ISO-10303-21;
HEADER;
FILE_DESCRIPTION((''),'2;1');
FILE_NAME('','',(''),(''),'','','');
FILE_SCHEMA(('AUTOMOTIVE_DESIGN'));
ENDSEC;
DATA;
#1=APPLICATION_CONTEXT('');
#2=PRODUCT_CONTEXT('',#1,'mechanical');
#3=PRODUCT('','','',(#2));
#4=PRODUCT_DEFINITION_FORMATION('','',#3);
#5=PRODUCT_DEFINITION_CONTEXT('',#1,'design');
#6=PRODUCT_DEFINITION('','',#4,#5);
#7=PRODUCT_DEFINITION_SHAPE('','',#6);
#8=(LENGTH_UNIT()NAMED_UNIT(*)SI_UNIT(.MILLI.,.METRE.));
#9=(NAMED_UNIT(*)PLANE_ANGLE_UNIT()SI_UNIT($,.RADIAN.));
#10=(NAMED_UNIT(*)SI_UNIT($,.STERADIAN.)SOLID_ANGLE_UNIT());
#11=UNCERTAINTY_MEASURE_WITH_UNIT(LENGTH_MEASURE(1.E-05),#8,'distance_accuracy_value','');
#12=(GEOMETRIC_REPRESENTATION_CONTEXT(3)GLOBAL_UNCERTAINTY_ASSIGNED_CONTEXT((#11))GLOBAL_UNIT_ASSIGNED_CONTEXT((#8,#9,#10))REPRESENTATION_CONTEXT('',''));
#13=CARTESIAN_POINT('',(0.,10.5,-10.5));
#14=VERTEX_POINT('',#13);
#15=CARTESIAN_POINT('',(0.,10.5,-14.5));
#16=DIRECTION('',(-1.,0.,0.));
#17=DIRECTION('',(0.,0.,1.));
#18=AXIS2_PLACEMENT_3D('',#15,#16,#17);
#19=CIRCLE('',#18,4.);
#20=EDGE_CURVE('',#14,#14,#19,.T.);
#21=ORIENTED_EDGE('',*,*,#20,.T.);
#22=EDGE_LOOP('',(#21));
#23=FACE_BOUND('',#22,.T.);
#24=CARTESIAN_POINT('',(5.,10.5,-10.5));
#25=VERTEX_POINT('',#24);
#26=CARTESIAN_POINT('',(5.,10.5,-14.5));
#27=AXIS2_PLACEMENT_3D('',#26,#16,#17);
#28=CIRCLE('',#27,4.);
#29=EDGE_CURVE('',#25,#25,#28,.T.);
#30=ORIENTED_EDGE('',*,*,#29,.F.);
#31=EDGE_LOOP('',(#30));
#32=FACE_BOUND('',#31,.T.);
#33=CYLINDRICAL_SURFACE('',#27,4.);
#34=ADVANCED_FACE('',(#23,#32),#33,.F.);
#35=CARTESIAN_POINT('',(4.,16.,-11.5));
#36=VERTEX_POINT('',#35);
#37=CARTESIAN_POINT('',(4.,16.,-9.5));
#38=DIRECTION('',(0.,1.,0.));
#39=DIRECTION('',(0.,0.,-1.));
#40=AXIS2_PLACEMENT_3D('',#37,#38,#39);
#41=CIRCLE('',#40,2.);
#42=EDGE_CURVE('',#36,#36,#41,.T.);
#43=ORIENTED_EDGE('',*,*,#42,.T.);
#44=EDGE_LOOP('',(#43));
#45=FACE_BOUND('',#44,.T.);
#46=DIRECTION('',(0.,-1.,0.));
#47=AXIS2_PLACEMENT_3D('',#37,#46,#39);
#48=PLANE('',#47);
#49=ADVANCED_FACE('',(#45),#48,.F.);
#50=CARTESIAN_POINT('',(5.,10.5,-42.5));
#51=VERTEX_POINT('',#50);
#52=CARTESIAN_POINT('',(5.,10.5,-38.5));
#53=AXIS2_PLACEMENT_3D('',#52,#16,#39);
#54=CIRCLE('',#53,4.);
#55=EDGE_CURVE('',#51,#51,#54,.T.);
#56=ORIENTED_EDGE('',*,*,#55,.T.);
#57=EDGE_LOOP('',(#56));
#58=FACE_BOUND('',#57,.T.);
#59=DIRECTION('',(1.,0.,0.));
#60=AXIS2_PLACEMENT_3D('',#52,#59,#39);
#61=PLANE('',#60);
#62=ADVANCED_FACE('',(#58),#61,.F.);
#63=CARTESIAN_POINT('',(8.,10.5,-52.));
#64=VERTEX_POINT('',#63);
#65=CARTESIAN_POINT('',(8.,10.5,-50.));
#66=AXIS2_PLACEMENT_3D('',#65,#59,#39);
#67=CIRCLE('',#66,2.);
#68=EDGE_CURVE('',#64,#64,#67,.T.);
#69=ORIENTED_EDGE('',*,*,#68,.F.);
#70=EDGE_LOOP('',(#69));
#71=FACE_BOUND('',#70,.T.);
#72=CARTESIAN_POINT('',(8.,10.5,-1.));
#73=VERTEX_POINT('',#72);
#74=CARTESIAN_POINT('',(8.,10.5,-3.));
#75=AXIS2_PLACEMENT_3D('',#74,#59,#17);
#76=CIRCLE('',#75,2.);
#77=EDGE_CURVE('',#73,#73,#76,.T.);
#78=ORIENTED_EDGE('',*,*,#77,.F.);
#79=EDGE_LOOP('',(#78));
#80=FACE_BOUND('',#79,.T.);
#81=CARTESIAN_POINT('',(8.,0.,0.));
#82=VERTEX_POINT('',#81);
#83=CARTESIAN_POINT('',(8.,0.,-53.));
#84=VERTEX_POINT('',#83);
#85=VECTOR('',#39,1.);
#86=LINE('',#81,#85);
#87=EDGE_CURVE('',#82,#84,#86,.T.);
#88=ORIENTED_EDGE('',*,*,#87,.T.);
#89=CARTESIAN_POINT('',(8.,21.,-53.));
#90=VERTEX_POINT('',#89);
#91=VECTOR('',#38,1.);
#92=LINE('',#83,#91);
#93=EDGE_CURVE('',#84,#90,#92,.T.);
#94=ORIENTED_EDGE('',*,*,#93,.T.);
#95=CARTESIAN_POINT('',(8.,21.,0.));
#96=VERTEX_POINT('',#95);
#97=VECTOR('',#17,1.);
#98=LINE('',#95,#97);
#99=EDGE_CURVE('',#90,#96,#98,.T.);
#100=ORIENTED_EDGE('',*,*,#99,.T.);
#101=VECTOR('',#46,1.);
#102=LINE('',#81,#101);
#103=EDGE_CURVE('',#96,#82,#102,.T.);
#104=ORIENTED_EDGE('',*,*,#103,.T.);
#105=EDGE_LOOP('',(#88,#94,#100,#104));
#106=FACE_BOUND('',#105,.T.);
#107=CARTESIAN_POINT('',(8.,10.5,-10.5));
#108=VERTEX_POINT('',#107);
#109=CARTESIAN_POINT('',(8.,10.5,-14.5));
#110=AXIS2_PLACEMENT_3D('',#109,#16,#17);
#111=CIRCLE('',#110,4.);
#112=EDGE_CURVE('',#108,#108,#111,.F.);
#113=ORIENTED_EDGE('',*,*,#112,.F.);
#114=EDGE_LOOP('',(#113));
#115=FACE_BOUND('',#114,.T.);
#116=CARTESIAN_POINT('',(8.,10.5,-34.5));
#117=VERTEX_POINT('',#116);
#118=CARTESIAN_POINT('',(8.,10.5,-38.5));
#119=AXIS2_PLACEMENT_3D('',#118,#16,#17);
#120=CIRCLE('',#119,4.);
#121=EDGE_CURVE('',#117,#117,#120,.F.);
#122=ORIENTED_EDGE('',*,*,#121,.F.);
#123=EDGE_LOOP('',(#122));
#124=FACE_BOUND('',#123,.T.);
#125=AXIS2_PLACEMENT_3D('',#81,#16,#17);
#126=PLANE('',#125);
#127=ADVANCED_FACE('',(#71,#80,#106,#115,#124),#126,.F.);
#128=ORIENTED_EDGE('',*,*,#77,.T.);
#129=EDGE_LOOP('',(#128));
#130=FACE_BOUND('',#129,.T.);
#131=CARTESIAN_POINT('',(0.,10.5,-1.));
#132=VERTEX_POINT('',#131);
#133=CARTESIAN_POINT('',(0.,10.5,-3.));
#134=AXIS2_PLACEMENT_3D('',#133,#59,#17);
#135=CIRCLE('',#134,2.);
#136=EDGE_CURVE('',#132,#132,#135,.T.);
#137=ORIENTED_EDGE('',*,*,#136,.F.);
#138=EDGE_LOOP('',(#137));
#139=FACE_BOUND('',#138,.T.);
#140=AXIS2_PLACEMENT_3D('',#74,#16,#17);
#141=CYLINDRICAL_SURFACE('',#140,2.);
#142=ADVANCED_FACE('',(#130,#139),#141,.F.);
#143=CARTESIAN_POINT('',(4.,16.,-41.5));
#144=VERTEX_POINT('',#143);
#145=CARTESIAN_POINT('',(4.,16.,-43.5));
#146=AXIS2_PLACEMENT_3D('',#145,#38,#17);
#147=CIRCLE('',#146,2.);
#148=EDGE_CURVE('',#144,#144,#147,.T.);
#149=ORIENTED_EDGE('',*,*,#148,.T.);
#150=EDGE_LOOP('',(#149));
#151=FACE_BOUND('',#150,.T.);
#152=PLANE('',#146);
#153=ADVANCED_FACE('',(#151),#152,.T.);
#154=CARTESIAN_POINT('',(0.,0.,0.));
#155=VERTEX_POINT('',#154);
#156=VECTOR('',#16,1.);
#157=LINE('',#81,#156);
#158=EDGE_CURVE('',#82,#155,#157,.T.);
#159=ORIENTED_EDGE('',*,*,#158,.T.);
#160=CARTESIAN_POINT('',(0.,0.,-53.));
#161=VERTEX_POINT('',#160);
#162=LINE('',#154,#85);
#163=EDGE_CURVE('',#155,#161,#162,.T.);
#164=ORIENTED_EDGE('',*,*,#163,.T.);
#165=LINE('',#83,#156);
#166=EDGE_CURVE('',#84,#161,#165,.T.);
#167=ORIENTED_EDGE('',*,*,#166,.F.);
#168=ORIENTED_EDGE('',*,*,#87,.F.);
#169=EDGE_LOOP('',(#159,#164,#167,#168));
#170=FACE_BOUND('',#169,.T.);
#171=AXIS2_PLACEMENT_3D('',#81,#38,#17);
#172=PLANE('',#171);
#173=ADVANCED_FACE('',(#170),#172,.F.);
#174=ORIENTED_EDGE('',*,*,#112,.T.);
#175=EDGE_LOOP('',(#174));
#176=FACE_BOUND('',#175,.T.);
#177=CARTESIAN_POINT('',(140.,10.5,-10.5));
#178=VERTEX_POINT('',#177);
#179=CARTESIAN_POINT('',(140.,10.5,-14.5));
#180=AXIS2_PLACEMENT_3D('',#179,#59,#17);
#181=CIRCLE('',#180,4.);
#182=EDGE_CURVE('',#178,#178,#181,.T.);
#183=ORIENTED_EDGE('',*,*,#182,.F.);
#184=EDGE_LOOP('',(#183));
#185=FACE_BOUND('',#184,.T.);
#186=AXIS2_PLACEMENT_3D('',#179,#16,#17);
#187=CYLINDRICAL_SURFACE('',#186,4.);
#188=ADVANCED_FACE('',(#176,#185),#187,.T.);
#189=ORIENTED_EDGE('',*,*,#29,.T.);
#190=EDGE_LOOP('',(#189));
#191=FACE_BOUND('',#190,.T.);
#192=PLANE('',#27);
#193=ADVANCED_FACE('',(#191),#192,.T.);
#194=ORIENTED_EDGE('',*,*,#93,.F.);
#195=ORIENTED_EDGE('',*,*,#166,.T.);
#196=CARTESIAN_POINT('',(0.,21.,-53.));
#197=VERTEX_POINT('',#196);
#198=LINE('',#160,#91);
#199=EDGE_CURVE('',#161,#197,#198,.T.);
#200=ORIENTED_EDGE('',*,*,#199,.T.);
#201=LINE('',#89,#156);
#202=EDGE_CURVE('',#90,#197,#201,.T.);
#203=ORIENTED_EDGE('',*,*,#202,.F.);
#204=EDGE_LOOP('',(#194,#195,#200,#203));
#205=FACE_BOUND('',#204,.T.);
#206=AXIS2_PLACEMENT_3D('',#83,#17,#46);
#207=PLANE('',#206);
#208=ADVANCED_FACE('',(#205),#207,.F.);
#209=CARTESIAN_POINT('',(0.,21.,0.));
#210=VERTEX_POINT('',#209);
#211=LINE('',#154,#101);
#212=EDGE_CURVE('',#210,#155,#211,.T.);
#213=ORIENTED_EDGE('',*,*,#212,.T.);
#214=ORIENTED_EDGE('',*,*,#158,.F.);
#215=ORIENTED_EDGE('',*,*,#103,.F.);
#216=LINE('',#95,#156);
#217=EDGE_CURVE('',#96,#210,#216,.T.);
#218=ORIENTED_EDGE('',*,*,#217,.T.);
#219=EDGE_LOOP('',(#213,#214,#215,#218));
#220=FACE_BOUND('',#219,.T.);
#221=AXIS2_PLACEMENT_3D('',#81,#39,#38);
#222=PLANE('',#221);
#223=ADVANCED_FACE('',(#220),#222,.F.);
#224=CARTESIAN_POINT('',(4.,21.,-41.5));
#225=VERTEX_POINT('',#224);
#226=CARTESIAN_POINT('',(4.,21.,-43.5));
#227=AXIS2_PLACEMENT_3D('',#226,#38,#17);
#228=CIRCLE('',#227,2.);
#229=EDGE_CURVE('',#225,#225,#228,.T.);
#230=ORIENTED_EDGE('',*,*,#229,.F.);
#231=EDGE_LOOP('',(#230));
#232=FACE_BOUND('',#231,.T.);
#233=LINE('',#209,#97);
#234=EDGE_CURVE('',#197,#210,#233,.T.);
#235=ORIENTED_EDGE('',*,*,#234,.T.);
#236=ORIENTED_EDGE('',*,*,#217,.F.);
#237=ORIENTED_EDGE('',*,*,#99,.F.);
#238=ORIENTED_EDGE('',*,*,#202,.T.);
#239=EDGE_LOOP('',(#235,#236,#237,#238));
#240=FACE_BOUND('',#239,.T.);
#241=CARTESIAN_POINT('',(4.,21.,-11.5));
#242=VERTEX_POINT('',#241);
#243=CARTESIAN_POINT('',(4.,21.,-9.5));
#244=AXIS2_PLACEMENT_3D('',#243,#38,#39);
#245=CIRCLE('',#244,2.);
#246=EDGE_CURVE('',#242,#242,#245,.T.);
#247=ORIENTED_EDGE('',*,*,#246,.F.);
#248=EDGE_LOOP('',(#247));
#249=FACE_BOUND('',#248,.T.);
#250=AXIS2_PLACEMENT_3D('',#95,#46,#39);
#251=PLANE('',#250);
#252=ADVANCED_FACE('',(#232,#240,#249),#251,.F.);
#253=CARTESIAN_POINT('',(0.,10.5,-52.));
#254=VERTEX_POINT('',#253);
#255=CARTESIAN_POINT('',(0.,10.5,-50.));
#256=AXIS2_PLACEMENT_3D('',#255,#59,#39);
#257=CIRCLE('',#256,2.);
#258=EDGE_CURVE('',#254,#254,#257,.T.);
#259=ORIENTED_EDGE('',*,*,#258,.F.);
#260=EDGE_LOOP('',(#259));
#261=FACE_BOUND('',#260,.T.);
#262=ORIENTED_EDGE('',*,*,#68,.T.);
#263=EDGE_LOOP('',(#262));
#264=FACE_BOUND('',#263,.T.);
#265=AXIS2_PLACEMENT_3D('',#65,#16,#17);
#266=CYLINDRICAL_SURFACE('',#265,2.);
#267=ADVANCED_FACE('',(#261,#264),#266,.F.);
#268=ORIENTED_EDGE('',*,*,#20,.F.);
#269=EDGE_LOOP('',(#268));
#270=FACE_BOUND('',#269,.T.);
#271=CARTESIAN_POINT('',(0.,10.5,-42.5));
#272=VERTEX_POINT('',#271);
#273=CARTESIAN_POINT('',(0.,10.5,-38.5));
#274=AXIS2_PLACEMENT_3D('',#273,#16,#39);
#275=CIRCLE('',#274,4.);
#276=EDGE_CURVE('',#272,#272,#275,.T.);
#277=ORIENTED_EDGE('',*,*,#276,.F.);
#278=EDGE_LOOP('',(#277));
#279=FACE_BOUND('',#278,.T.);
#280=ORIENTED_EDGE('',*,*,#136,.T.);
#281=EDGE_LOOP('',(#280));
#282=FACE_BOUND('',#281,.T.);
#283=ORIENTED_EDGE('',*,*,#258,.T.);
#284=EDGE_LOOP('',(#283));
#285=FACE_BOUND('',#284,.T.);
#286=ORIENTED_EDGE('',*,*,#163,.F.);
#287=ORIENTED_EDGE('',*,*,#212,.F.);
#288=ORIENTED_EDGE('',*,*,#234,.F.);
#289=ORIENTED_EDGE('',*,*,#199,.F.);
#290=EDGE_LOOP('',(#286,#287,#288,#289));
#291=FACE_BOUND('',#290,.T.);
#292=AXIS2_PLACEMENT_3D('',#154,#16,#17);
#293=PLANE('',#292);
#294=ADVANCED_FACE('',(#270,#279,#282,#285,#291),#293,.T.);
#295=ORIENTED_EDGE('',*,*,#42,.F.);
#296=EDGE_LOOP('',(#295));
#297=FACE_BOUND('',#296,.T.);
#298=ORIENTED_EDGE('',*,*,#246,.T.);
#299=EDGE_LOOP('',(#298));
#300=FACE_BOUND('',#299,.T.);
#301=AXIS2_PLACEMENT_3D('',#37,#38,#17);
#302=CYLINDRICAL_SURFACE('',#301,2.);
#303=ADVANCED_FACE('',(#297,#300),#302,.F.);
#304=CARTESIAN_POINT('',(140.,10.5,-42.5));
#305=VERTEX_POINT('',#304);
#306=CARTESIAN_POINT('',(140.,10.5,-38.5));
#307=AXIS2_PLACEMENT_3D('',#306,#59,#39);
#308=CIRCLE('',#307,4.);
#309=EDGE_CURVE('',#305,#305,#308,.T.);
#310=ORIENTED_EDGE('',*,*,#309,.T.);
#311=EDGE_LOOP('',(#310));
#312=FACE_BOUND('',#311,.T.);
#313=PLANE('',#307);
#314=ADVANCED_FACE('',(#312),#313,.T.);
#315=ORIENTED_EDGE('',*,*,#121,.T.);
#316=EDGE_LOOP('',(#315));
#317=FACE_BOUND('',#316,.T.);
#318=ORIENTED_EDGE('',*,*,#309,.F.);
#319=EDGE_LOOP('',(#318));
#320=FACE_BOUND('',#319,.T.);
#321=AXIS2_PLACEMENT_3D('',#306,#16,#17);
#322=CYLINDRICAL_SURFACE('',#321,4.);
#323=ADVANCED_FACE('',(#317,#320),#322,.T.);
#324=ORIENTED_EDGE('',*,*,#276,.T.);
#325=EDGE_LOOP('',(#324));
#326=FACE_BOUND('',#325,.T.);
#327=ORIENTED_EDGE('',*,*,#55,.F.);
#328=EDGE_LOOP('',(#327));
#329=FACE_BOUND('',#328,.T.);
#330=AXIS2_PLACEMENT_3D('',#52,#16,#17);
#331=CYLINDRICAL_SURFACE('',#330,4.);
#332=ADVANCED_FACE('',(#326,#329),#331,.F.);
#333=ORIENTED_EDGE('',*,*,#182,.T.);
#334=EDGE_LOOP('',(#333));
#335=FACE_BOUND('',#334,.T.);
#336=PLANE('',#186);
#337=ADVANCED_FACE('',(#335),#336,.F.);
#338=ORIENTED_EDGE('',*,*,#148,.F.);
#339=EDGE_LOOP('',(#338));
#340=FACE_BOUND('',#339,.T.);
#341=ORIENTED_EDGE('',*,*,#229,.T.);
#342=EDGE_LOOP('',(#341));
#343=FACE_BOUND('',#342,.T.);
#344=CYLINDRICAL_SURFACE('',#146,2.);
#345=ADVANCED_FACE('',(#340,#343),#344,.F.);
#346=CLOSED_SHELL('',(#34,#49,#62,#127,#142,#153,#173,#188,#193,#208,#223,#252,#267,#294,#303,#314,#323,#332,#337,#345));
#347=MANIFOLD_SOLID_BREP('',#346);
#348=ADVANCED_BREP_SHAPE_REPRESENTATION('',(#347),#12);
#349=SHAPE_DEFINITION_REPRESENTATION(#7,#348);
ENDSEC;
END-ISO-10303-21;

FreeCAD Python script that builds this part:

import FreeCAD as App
import Part
import Sketcher
from FreeCAD import Vector


def add_polygon(sketch, points):
    """Adds a closed chain of lines whose ends are joined by coincident constraints."""
    first, n = sketch.GeometryCount, len(points)
    for a, b in zip(points, points[1:] + points[:1]):
        sketch.addGeometry(Part.LineSegment(App.Vector(*a, 0), App.Vector(*b, 0)), False)
    for i in range(n):
        sketch.addConstraint(Sketcher.Constraint("Coincident", first + i, 2, first + (i + 1) % n, 1))

doc = App.newDocument("Part")
body = doc.addObject("PartDesign::Body", "Body")

sketch1 = body.newObject("Sketcher::SketchObject", "Sketch")
sketch1.AttachmentSupport = (doc.getObject("YZ_Plane"), [""])
sketch1.MapMode = "FlatFace"
add_polygon(sketch1, [(21, 0), (0, 0), (0, -53), (21, -53)])
sketch1.addGeometry(Part.Circle(Vector(10.5, -3, 0), Vector(0, 0, 1), 2), False)
sketch1.addGeometry(Part.Circle(Vector(10.5, -50, 0), Vector(0, 0, 1), 2), False)
sketch1.addConstraint(Sketcher.Constraint("Horizontal", 0))
sketch1.addConstraint(Sketcher.Constraint("Vertical", 1))
sketch1.addConstraint(Sketcher.Constraint("Horizontal", 2))
sketch1.addConstraint(Sketcher.Constraint("Vertical", 3))
sketch1.addConstraint(Sketcher.Constraint("Coincident", 0, 2, -1, 1))
sketch1.addConstraint(Sketcher.Constraint("Equal", 4, 5))
sketch1.addConstraint(Sketcher.Constraint("Vertical", 4, 3, 5, 3))
sketch1.addConstraint(Sketcher.Constraint("Diameter", 4, 4.0))
sketch1.addConstraint(Sketcher.Constraint("DistanceX", 0, 2, 0, 1, 21.0))
sketch1.addConstraint(Sketcher.Constraint("DistanceY", 1, 2, 1, 1, 53.0))
sketch1.addConstraint(Sketcher.Constraint("DistanceY", 4, 3, -1, 1, 3.0))
sketch1.addConstraint(Sketcher.Constraint("DistanceY", 5, 3, -1, 1, 50.0))
sketch1.addConstraint(Sketcher.Constraint("DistanceX", -1, 1, 4, 3, 10.5))
pad1 = body.newObject("PartDesign::Pad", "Pad")
pad1.Profile = sketch1
pad1.Length = 8

sketch2 = body.newObject("Sketcher::SketchObject", "Sketch001")
sketch2.AttachmentSupport = (doc.getObject("YZ_Plane"), [""])
sketch2.MapMode = "FlatFace"
sketch2.addGeometry(Part.Circle(Vector(10.5, -14.5, 0), Vector(0, 0, 1), 4), False)
sketch2.addGeometry(Part.Circle(Vector(10.5, -38.5, 0), Vector(0, 0, 1), 4), False)
sketch2.addConstraint(Sketcher.Constraint("Equal", 0, 1))
sketch2.addConstraint(Sketcher.Constraint("Vertical", 0, 3, 1, 3))
sketch2.addConstraint(Sketcher.Constraint("Diameter", 0, 8.0))
sketch2.addConstraint(Sketcher.Constraint("DistanceY", 1, 3, 0, 3, 24.0))
sketch2.addConstraint(Sketcher.Constraint("DistanceX", -1, 1, 0, 3, 10.5))
sketch2.addConstraint(Sketcher.Constraint("DistanceY", 0, 3, -1, 1, 14.5))
pocket1 = body.newObject("PartDesign::Pocket", "Pocket")
pocket1.Profile = sketch2
pocket1.Length = 5
pocket1.Reversed = True

sketch3 = body.newObject("Sketcher::SketchObject", "Sketch002")
sketch3.AttachmentSupport = (doc.getObject("YZ_Plane"), [""])
sketch3.MapMode = "FlatFace"
sketch3.AttachmentOffset = App.Placement(Vector(0, 0, 8), App.Rotation())
sketch3.addGeometry(Part.Circle(Vector(10.5, -38.5, 0), Vector(0, 0, 1), 4), False)
sketch3.addGeometry(Part.Circle(Vector(10.5, -14.5, 0), Vector(0, 0, 1), 4), False)
sketch3.addConstraint(Sketcher.Constraint("Equal", 0, 1))
sketch3.addConstraint(Sketcher.Constraint("Vertical", 0, 3, 1, 3))
sketch3.addConstraint(Sketcher.Constraint("Diameter", 0, 8.0))
sketch3.addConstraint(Sketcher.Constraint("DistanceY", 0, 3, 1, 3, 24.0))
sketch3.addConstraint(Sketcher.Constraint("DistanceX", -1, 1, 0, 3, 10.5))
sketch3.addConstraint(Sketcher.Constraint("DistanceY", 0, 3, -1, 1, 38.5))
pad2 = body.newObject("PartDesign::Pad", "Pad001")
pad2.Profile = sketch3
pad2.Length = 132

sketch4 = body.newObject("Sketcher::SketchObject", "Sketch003")
sketch4.AttachmentSupport = (doc.getObject("XZ_Plane"), [""])
sketch4.MapMode = "FlatFace"
sketch4.AttachmentOffset = App.Placement(Vector(0, 0, -21), App.Rotation())
sketch4.addGeometry(Part.Circle(Vector(4, -43.5, 0), Vector(0, 0, 1), 2), False)
sketch4.addGeometry(Part.Circle(Vector(4, -9.5, 0), Vector(0, 0, 1), 2), False)
sketch4.addConstraint(Sketcher.Constraint("Equal", 0, 1))
sketch4.addConstraint(Sketcher.Constraint("Vertical", 0, 3, 1, 3))
sketch4.addConstraint(Sketcher.Constraint("Diameter", 0, 4.0))
sketch4.addConstraint(Sketcher.Constraint("DistanceX", -1, 1, 0, 3, 4.0))
sketch4.addConstraint(Sketcher.Constraint("DistanceY", 0, 3, 1, 3, 34.0))
sketch4.addConstraint(Sketcher.Constraint("DistanceY", 0, 3, -1, 1, 43.5))
pocket2 = body.newObject("PartDesign::Pocket", "Pocket001")
pocket2.Profile = sketch4
pocket2.Length = 5
pocket2.Reversed = True

doc.recompute()
